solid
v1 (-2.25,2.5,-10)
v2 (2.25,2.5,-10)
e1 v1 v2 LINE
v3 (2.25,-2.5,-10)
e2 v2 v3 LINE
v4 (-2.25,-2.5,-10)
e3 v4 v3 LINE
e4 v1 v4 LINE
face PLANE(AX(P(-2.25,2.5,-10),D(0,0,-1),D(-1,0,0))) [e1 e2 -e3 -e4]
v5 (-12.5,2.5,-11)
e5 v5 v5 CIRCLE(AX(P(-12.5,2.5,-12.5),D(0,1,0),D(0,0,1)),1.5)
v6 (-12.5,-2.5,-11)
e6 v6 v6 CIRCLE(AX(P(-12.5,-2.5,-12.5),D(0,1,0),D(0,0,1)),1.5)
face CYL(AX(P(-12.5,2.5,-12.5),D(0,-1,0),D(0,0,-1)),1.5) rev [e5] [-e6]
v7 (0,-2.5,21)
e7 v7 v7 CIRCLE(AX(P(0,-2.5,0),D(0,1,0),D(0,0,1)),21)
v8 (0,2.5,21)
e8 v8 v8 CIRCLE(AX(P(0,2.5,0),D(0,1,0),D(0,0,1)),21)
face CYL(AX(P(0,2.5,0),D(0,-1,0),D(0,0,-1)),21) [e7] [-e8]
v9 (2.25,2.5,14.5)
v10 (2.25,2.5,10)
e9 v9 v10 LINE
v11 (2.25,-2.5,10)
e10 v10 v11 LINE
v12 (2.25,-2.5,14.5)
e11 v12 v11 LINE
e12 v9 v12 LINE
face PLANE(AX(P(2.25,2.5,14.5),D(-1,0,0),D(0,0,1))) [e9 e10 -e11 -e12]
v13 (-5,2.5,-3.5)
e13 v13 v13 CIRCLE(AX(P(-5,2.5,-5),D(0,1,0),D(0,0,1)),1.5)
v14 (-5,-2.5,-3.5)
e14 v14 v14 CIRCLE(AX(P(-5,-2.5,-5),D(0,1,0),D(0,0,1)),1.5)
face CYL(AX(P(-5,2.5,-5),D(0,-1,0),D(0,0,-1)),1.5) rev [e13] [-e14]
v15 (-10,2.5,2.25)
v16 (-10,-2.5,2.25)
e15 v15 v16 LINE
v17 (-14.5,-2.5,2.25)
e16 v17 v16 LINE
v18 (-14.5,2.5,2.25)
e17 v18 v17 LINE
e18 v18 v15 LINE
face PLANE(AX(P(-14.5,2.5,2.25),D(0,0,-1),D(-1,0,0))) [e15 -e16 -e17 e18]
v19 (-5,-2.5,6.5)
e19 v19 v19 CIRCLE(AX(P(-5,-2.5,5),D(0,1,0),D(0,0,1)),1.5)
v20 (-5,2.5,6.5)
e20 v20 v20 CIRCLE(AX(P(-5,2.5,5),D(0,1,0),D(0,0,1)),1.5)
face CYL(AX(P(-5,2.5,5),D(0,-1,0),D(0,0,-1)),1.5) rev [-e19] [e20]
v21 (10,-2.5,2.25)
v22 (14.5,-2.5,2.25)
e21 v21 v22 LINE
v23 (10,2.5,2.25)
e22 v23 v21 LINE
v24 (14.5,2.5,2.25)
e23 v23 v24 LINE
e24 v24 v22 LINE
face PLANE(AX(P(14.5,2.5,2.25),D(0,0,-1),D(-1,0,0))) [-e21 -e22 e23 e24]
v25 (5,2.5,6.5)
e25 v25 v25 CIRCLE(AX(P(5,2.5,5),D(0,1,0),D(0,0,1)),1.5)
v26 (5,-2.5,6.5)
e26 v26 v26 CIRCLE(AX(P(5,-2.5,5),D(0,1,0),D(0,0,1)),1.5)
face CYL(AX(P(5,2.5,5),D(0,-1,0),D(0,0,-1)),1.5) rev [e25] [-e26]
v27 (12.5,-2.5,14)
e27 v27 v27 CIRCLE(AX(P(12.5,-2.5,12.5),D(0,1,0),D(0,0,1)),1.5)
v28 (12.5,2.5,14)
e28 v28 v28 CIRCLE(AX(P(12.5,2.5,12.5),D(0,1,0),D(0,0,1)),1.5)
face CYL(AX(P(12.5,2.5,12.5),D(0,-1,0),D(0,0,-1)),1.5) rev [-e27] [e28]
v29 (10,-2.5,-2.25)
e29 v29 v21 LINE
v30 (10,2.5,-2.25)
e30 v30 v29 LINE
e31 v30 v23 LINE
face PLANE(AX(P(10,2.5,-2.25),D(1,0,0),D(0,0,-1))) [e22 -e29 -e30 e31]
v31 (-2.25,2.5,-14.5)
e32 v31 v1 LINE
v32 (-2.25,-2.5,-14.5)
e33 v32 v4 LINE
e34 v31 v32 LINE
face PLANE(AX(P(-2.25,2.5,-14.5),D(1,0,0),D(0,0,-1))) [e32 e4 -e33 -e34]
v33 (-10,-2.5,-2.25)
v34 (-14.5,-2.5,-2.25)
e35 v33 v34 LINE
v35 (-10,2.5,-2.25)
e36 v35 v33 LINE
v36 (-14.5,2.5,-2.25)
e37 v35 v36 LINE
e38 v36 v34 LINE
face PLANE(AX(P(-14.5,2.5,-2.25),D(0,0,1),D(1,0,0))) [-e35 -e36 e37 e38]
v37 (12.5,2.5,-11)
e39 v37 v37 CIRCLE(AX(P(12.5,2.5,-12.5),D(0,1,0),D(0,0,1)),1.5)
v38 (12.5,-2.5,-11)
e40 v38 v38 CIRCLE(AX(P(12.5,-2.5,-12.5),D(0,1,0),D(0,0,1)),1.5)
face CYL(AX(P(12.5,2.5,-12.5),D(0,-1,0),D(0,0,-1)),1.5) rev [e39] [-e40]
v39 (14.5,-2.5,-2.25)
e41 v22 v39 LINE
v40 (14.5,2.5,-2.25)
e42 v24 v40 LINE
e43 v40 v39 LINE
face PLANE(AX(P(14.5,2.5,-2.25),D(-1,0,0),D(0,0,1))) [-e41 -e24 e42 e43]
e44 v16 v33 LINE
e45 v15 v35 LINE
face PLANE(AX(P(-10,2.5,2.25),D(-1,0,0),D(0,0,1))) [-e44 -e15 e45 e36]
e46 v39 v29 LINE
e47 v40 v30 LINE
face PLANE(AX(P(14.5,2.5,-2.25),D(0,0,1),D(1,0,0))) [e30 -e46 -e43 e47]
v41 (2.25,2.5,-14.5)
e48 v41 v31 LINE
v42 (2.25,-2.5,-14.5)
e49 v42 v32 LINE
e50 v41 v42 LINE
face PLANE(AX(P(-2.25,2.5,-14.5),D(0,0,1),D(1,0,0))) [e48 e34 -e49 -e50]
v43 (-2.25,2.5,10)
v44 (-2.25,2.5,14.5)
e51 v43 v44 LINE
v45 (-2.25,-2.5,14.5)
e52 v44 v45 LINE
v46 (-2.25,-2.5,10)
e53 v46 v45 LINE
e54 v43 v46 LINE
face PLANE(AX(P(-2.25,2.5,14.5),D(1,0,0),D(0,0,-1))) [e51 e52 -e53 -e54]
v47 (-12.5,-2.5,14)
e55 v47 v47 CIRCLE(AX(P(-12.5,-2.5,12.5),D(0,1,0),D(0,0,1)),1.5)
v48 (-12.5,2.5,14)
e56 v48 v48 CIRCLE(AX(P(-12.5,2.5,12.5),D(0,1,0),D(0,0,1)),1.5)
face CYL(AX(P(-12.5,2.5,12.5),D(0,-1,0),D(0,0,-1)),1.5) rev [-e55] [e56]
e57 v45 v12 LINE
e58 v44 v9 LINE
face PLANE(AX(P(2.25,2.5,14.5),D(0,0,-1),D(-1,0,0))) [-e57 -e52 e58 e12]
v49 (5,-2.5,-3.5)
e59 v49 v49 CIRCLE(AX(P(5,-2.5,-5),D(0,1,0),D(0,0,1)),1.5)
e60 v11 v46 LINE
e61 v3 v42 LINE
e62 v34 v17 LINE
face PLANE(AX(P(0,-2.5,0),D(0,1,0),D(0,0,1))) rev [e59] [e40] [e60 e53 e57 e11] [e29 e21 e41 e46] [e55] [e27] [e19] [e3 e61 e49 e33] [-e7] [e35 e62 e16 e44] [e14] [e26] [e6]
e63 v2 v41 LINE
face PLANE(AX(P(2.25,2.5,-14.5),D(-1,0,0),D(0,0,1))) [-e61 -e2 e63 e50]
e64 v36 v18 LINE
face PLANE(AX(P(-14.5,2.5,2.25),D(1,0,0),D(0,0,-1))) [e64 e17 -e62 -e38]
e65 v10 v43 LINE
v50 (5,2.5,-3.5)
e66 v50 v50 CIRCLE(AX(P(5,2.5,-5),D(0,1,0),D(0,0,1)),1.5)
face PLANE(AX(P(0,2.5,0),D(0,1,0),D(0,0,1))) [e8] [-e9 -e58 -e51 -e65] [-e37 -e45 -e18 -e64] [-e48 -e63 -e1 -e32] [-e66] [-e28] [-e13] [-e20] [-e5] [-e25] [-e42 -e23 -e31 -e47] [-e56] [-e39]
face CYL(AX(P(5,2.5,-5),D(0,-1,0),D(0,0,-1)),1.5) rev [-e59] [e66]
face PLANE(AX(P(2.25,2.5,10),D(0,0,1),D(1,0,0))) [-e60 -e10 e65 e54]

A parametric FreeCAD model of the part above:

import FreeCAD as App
import Part
import Sketcher


def add_polygon(sketch, points):
    """Adds a closed chain of lines whose ends are joined by coincident constraints."""
    first, n = sketch.GeometryCount, len(points)
    for a, b in zip(points, points[1:] + points[:1]):
        sketch.addGeometry(Part.LineSegment(App.Vector(*a, 0), App.Vector(*b, 0)), False)
    for i in range(n):
        sketch.addConstraint(Sketcher.Constraint("Coincident", first + i, 2, first + (i + 1) % n, 1))

doc = App.newDocument("Part")
body = doc.addObject("PartDesign::Body", "Body")

sketch1 = body.newObject("Sketcher::SketchObject", "Sketch")
sketch1.AttachmentSupport = (doc.getObject("XZ_Plane"), [""])
sketch1.MapMode = "FlatFace"
sketch1.addGeometry(Part.Circle(App.Vector(0, 0, 0), App.Vector(0, 0, 1), 21), False)
sketch1.addGeometry(Part.Circle(App.Vector(-12.5, 12.5, 0), App.Vector(0, 0, 1), 1.5), False)
sketch1.addGeometry(Part.Circle(App.Vector(-5, 5, 0), App.Vector(0, 0, 1), 1.5), False)
add_polygon(sketch1, [(2.2, 14.5), (-2.2, 14.5), (-2.2, 10), (2.2, 10)])
sketch1.addGeometry(Part.Circle(App.Vector(12.5, 12.5, 0), App.Vector(0, 0, 1), 1.5), False)
sketch1.addGeometry(Part.Circle(App.Vector(5, 5, 0), App.Vector(0, 0, 1), 1.5), False)
add_polygon(sketch1, [(-10, 2.2), (-14.5, 2.2), (-14.5, -2.2), (-10, -2.2)])
sketch1.addGeometry(Part.Circle(App.Vector(-5, -5, 0), App.Vector(0, 0, 1), 1.5), False)
sketch1.addGeometry(Part.Circle(App.Vector(-12.5, -12.5, 0), App.Vector(0, 0, 1), 1.5), False)
sketch1.addGeometry(Part.Circle(App.Vector(5, -5, 0), App.Vector(0, 0, 1), 1.5), False)
add_polygon(sketch1, [(14.5, 2.2), (10, 2.2), (10, -2.2), (14.5, -2.2)])
add_polygon(sketch1, [(2.2, -10), (-2.2, -10), (-2.2, -14.5), (2.2, -14.5)])
sketch1.addGeometry(Part.Circle(App.Vector(12.5, -12.5, 0), App.Vector(0, 0, 1), 1.5), False)
sketch1.addConstraint([
    Sketcher.Constraint("Horizontal", 3),
    Sketcher.Constraint("Vertical", 4),
    Sketcher.Constraint("Horizontal", 5),
    Sketcher.Constraint("Vertical", 6),
    Sketcher.Constraint("Horizontal", 9),
    Sketcher.Constraint("Vertical", 10),
    Sketcher.Constraint("Horizontal", 11),
    Sketcher.Constraint("Vertical", 12),
    Sketcher.Constraint("Horizontal", 16),
    Sketcher.Constraint("Vertical", 17),
    Sketcher.Constraint("Horizontal", 18),
    Sketcher.Constraint("Vertical", 19),
    Sketcher.Constraint("Horizontal", 20),
    Sketcher.Constraint("Vertical", 21),
    Sketcher.Constraint("Horizontal", 22),
    Sketcher.Constraint("Vertical", 23),
    Sketcher.Constraint("Coincident", 0, 3, -1, 1),
    Sketcher.Constraint("Equal", 1, 2),
    Sketcher.Constraint("Equal", 2, 7),
    Sketcher.Constraint("Equal", 7, 8),
    Sketcher.Constraint("Equal", 8, 13),
    Sketcher.Constraint("Equal", 13, 14),
    Sketcher.Constraint("Equal", 14, 15),
    Sketcher.Constraint("Equal", 15, 24),
    Sketcher.Constraint("Symmetric", 8, 3, 13, 3, -1, 1),
    Sketcher.Constraint("Symmetric", 7, 3, 14, 3, -1, 1),
    Sketcher.Constraint("Symmetric", 2, 3, 15, 3, -1, 1),
    Sketcher.Constraint("Symmetric", 1, 3, 24, 3, -1, 1),
    Sketcher.Constraint("Symmetric", 11, 2, 16, 2, -1, 1),
    Sketcher.Constraint("Symmetric", 9, 2, 18, 2, -1, 1),
    Sketcher.Constraint("Symmetric", 5, 2, 20, 2, -1, 1),
    Sketcher.Constraint("Symmetric", 3, 2, 22, 2, -1, 1),
    Sketcher.Constraint("Symmetric", 1, 3, 7, 3, -2),
    Sketcher.Constraint("Symmetric", 2, 3, 8, 3, -2),
    Sketcher.Constraint("Horizontal", 12, 2, 16, 2),
    Sketcher.Constraint("Vertical", 4, 2, 20, 2),
    Sketcher.Constraint("Equal", 5, 9),
    Sketcher.Constraint("Equal", 22, 4),
    Sketcher.Constraint("Equal", 6, 10),
    Sketcher.Constraint("Diameter", 0, 42.0),
    Sketcher.Constraint("Diameter", 1, 3.0),
    Sketcher.Constraint("DistanceX", 3, 2, 3, 1, 4.5),
    Sketcher.Constraint("DistanceX", 2, 3, -1, 1, 5.0),
    Sketcher.Constraint("DistanceY", -1, 1, 2, 3, 5.0),
    Sketcher.Constraint("DistanceY", -1, 1, 4, 2, 10.0),
    Sketcher.Constraint("DistanceX", 11, 2, -1, 1, 10.0),
    Sketcher.Constraint("DistanceX", 1, 3, 7, 3, 25.0),
    Sketcher.Constraint("DistanceY", 14, 3, 1, 3, 25.0),
])
pad1 = body.newObject("PartDesign::Pad", "Pad")
pad1.Profile = sketch1
pad1.Length = 5
pad1.Midplane = True

doc.recompute()
